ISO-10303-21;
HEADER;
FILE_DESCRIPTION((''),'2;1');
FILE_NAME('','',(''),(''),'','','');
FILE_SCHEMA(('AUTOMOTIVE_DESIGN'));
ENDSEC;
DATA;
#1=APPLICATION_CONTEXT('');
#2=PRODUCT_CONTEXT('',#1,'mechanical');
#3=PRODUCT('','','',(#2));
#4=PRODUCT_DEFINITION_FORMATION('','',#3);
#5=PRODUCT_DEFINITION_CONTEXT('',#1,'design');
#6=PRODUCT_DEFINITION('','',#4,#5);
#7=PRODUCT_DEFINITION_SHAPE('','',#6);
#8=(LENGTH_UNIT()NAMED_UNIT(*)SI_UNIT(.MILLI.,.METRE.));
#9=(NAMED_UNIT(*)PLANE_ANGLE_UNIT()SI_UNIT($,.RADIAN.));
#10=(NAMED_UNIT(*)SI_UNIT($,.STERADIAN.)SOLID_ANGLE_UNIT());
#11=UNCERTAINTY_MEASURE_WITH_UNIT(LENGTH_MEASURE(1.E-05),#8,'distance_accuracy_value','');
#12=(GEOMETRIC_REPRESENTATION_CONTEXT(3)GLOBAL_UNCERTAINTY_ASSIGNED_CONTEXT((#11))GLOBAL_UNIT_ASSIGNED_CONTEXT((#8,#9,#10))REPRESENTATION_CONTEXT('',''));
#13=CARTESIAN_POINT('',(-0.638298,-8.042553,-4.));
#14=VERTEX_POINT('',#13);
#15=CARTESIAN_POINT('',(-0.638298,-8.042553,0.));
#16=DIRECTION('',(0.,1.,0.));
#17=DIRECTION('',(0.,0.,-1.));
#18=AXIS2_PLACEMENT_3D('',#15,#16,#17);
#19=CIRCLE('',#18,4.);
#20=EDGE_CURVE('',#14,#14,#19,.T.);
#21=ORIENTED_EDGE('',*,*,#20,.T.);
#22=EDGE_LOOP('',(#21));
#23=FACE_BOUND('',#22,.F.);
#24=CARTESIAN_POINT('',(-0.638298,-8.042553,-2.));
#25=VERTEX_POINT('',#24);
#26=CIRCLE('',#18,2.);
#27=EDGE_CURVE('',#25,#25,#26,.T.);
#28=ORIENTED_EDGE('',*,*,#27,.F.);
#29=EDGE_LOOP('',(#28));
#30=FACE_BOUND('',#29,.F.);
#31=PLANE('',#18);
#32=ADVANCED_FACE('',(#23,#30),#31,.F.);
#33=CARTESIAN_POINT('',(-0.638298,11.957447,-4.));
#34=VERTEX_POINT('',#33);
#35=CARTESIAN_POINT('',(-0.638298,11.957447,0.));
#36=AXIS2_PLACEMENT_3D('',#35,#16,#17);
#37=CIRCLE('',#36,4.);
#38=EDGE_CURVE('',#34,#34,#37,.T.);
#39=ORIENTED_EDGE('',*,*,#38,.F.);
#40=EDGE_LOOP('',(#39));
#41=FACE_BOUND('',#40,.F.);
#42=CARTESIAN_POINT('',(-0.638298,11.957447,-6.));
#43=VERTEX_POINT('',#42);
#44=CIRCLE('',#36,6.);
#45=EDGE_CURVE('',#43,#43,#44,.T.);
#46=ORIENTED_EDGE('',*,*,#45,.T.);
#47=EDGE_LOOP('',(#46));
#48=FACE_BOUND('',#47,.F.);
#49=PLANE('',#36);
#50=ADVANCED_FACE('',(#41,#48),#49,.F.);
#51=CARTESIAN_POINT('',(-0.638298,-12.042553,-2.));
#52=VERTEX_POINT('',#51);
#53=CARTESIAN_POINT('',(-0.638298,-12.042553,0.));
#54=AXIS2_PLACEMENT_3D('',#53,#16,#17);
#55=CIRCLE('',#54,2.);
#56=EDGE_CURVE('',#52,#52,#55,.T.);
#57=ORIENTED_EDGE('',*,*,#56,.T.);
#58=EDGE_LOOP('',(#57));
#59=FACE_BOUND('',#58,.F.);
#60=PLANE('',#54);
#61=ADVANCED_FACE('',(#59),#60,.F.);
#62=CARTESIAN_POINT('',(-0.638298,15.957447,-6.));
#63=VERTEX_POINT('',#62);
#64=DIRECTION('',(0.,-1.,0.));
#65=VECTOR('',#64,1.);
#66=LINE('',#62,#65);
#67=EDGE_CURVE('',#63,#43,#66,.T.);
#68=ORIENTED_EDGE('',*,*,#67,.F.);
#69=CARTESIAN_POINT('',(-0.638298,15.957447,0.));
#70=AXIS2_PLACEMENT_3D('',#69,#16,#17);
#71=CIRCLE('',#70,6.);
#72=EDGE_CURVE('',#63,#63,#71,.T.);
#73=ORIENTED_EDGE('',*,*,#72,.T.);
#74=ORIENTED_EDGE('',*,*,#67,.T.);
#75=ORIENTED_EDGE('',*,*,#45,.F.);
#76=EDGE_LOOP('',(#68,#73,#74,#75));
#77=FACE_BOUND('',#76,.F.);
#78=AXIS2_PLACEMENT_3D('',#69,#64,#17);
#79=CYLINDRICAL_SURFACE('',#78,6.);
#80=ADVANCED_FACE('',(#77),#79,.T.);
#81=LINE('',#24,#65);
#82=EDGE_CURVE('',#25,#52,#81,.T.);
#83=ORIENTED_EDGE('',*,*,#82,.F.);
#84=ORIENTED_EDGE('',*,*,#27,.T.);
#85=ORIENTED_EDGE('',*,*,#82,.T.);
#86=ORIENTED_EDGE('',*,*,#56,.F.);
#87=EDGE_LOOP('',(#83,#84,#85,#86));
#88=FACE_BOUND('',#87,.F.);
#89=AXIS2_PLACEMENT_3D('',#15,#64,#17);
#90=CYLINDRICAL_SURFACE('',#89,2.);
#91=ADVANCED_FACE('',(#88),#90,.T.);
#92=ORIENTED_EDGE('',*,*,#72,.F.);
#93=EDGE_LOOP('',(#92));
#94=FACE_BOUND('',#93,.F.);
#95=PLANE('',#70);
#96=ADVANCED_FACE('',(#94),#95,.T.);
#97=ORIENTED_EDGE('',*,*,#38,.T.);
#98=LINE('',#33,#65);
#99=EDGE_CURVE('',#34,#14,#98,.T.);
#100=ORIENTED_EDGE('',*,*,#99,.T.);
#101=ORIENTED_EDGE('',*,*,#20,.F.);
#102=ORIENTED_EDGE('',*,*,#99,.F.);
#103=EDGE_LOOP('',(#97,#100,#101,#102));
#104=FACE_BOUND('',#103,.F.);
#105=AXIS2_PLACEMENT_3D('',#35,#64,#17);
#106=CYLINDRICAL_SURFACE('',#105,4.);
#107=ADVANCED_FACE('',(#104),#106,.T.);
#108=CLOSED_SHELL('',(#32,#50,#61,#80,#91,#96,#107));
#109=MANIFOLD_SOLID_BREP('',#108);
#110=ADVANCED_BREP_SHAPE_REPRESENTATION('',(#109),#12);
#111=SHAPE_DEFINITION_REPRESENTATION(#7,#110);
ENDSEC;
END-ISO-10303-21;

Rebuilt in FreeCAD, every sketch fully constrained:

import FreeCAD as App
import Part
import Sketcher

V = App.Vector
Q = App.Units.Quantity


def add_polygon(sketch, points):
    """Adds a closed chain of lines whose ends are joined by coincident constraints."""
    first, n = sketch.GeometryCount, len(points)
    for a, b in zip(points, points[1:] + points[:1]):
        sketch.addGeometry(Part.LineSegment(App.Vector(*a, 0), App.Vector(*b, 0)), False)
    for i in range(n):
        sketch.addConstraint(Sketcher.Constraint("Coincident", first + i, 2, first + (i + 1) % n, 1))

doc = App.newDocument("Part")
body = doc.addObject("PartDesign::Body", "Body")

# Sketch on XY plane
sketch1 = doc.addObject("Sketcher::SketchObject", "Sketch")
body.addObject(sketch1)
sketch1.AttachmentSupport = (doc.XY_Plane, [""])
sketch1.MapMode = "FlatFace"
add_polygon(sketch1, [(5.361702, 15.957447), (-0.638298, 15.957447), (-0.638298, -12.042553), (1.361702, -12.042553), (1.361702, -8.042553), (3.361702, -8.042553), (3.361702, 11.957447), (5.361702, 11.957447)])  # lines 0-7
sketch1.addGeometry(Part.LineSegment(V(-0.638298, -12.042553, 0), V(-0.638298, 15.957447, 0)), True)  # axis
sketch1.addConstraint(Sketcher.Constraint("Horizontal", 0))
sketch1.addConstraint(Sketcher.Constraint("Vertical", 1))
sketch1.addConstraint(Sketcher.Constraint("Horizontal", 2))
sketch1.addConstraint(Sketcher.Constraint("Vertical", 3))
sketch1.addConstraint(Sketcher.Constraint("Horizontal", 4))
sketch1.addConstraint(Sketcher.Constraint("Vertical", 5))
sketch1.addConstraint(Sketcher.Constraint("Horizontal", 6))
sketch1.addConstraint(Sketcher.Constraint("Vertical", 7))
sketch1.addConstraint(Sketcher.Constraint("Vertical", 8))
sketch1.addConstraint(Sketcher.Constraint("Coincident", 8, 1, 1, 2))
sketch1.addConstraint(Sketcher.Constraint("Horizontal", 7, 2, 8, 2))
sketch1.addConstraint(Sketcher.Constraint("Equal", 2, 4))
sketch1.addConstraint(Sketcher.Constraint("Equal", 4, 6))
sketch1.addConstraint(Sketcher.Constraint("Equal", 3, 7))
sketch1.addConstraint(Sketcher.Constraint("DistanceX", 0, 2, 0, 1, Q("6 mm")))
sketch1.addConstraint(Sketcher.Constraint("DistanceY", 1, 2, 1, 1, Q("28 mm")))
sketch1.addConstraint(Sketcher.Constraint("DistanceY", 3, 1, 3, 2, Q("4 mm")))
sketch1.addConstraint(Sketcher.Constraint("DistanceX", 0, 2, -1, 1, Q("0.638298 mm")))
sketch1.addConstraint(Sketcher.Constraint("DistanceY", -1, 1, 0, 2, Q("15.957447 mm")))
revolution = doc.addObject("PartDesign::Revolution", "Revolution")
body.addObject(revolution)
revolution.Profile = sketch1
revolution.ReferenceAxis = (sketch1, ["Axis0"])
revolution.Angle = 360

doc.recompute()
